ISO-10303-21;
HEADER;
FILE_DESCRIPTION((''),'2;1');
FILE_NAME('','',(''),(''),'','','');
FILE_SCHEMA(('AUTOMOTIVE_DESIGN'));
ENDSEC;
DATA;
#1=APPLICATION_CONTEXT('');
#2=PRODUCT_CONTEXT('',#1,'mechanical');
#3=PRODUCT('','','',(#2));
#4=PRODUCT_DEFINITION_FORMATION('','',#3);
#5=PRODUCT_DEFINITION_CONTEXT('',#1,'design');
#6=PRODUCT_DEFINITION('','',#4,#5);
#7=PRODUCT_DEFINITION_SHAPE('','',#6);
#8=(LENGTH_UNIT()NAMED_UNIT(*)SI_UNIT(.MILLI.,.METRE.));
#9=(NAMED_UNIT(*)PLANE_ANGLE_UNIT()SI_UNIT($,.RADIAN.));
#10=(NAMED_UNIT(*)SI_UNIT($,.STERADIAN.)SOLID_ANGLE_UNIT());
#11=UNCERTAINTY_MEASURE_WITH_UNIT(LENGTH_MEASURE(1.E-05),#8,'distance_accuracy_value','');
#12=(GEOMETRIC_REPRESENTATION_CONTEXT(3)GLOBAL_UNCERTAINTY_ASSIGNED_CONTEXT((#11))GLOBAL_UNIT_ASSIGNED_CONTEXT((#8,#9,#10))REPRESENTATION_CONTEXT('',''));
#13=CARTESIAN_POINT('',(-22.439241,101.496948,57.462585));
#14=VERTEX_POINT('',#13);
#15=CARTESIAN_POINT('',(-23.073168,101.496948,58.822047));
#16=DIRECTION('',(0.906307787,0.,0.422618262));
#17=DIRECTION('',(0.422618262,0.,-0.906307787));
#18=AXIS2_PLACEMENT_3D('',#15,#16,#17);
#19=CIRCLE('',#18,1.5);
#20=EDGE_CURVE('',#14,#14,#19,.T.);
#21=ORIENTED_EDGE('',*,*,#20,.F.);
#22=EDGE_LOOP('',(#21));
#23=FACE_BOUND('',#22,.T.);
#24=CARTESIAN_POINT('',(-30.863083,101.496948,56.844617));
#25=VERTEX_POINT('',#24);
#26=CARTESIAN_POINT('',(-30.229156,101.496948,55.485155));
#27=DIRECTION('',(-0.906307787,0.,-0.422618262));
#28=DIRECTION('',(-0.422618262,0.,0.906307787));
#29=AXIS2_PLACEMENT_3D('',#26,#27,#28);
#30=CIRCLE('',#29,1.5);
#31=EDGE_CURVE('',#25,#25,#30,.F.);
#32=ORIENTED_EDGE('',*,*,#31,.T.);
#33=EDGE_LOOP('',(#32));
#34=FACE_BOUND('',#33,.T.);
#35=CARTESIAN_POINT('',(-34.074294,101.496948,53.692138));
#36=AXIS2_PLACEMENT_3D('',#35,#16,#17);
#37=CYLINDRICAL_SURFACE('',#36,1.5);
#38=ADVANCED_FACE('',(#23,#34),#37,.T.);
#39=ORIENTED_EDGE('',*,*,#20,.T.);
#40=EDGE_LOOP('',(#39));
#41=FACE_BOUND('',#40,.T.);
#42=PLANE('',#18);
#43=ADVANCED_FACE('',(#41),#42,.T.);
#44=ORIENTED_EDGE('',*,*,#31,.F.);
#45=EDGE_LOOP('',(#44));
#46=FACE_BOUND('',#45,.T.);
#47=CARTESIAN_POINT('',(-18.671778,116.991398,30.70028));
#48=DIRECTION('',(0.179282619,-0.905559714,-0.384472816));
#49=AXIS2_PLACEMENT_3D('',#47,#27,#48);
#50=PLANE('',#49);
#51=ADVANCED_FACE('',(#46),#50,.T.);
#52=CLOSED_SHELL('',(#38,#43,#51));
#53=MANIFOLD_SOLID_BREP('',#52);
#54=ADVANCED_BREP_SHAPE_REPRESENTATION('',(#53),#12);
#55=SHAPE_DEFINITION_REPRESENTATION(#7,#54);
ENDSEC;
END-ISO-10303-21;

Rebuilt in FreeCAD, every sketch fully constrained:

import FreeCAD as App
import Part
import Sketcher

V = App.Vector

doc = App.newDocument("Part")
params = doc.addObject("Spreadsheet::Sheet", "Params")
for row, (alias, value) in enumerate([
    ("sketch1_diameter", "3 mm"),
    ("pad1_length", "7.895758 mm"),
], start=1):
    params.set(f"A{row}", alias)
    params.set(f"B{row}", "=" + value)
    params.setAlias(f"B{row}", alias)

body = doc.addObject("PartDesign::Body", "Body")

# Sketch on an angled plane
sketch1 = body.newObject("Sketcher::SketchObject", "Sketch")
sketch1.Placement = App.Placement(V(3.577994, 0, 1.668446), App.Rotation(V(0.422618262, 0, -0.906307787), V(0, 1, 0), V(0.906307787, 0, 0.422618262), "ZXY"))
sketch1.addGeometry(Part.Circle(V(-63.1, 101.5, 0), V(0, 0, 1), 1.5), False)
sketch1.addConstraint(Sketcher.Constraint("Diameter", 0, 3.0))
sketch1.addConstraint(Sketcher.Constraint("DistanceX", 0, 3, -1, 1, 63.062022))
sketch1.addConstraint(Sketcher.Constraint("DistanceY", -1, 1, 0, 3, 101.496948))
sketch1.setExpression("Constraints[0]", "Params.sketch1_diameter")
pad1 = body.newObject("PartDesign::Pad", "Pad")
pad1.Profile = sketch1
pad1.setExpression("Length", "Params.pad1_length")
pad1.Reversed = True

doc.recompute()
